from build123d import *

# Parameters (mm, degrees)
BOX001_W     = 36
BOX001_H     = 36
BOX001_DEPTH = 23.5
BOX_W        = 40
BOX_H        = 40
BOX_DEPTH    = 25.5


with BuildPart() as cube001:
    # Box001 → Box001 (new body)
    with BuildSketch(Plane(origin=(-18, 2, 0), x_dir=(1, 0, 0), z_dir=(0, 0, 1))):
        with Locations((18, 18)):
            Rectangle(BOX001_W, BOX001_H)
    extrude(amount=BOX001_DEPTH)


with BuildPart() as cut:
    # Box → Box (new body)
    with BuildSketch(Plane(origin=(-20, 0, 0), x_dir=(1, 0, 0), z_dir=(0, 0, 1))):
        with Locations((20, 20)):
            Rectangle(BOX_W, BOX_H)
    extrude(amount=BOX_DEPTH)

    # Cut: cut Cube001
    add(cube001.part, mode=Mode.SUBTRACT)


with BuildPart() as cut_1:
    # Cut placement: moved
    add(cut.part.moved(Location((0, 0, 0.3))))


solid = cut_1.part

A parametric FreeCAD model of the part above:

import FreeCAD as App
import Part
import Sketcher

doc = App.newDocument("Part")
body = doc.addObject("PartDesign::Body", "Body")

sketch1 = body.newObject("Sketcher::SketchObject", "Sketch")
sketch1.AttachmentSupport = (doc.getObject("XY_Plane"), [""])
sketch1.MapMode = "FlatFace"
sketch1.addGeometry([
    Part.LineSegment(App.Vector(-18, 38, 0), App.Vector(-18, 2, 0)),
    Part.LineSegment(App.Vector(-18, 2, 0), App.Vector(18, 2, 0)),
    Part.LineSegment(App.Vector(18, 2, 0), App.Vector(18, 38, 0)),
    Part.LineSegment(App.Vector(18, 38, 0), App.Vector(-18, 38, 0)),
], False)
sketch1.addConstraint([
    Sketcher.Constraint("Coincident", 0, 2, 1, 1),
    Sketcher.Constraint("Coincident", 1, 2, 2, 1),
    Sketcher.Constraint("Coincident", 2, 2, 3, 1),
    Sketcher.Constraint("Coincident", 3, 2, 0, 1),
    Sketcher.Constraint("Vertical", 0),
    Sketcher.Constraint("Horizontal", 1),
    Sketcher.Constraint("Vertical", 2),
    Sketcher.Constraint("Horizontal", 3),
    Sketcher.Constraint("Equal", 3, 0),
    Sketcher.Constraint("DistanceX", 1, 1, 1, 2, 36.0),
    Sketcher.Constraint("DistanceX", 0, 2, -1, 1, 18.0),
    Sketcher.Constraint("DistanceY", -1, 1, 0, 2, 2.0),
])
pad1 = body.newObject("PartDesign::Pad", "Pad")
pad1.Profile = sketch1
pad1.Length = 23.5
body2 = doc.addObject("PartDesign::Body", "Body001")

sketch2 = body2.newObject("Sketcher::SketchObject", "Sketch001")
sketch2.AttachmentSupport = (doc.getObject("XY_Plane001"), [""])
sketch2.MapMode = "FlatFace"
sketch2.addGeometry([
    Part.LineSegment(App.Vector(-20, 40, 0), App.Vector(-20, 0, 0)),
    Part.LineSegment(App.Vector(-20, 0, 0), App.Vector(20, 0, 0)),
    Part.LineSegment(App.Vector(20, 0, 0), App.Vector(20, 40, 0)),
    Part.LineSegment(App.Vector(20, 40, 0), App.Vector(-20, 40, 0)),
], False)
sketch2.addConstraint([
    Sketcher.Constraint("Coincident", 0, 2, 1, 1),
    Sketcher.Constraint("Coincident", 1, 2, 2, 1),
    Sketcher.Constraint("Coincident", 2, 2, 3, 1),
    Sketcher.Constraint("Coincident", 3, 2, 0, 1),
    Sketcher.Constraint("Vertical", 0),
    Sketcher.Constraint("Horizontal", 1),
    Sketcher.Constraint("Vertical", 2),
    Sketcher.Constraint("Horizontal", 3),
    Sketcher.Constraint("Symmetric", 0, 2, 1, 2, -1, 1),
    Sketcher.Constraint("Equal", 3, 0),
    Sketcher.Constraint("DistanceX", 1, 1, 1, 2, 40.0),
])
pad2 = body2.newObject("PartDesign::Pad", "Pad001")
pad2.Profile = sketch2
pad2.Length = 25.5
doc.recompute()

boolean = body2.newObject("PartDesign::Boolean", "Boolean")
boolean.Type = "Cut"
boolean.addObjects([body])
body3 = doc.addObject("PartDesign::Body", "Body002")
doc.recompute()

body2.Placement = App.Placement(App.Vector(0, 0, 0.3), App.Rotation(App.Vector(0, 0, 1), 0))
boolean2 = body3.newObject("PartDesign::Boolean", "Boolean001")
boolean2.Type = "Fuse"
boolean2.addObjects([body2])

doc.recompute()
